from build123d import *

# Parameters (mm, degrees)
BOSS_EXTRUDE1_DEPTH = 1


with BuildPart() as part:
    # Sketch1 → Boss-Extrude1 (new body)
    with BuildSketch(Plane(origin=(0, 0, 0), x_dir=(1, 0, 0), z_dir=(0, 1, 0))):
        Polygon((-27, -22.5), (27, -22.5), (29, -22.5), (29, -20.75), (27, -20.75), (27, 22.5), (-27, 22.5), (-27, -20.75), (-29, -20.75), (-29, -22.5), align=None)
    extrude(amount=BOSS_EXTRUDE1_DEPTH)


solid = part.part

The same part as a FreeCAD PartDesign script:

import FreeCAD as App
import Part
import Sketcher
from FreeCAD import Vector

doc = App.newDocument("Part")
body = doc.addObject("PartDesign::Body", "Body")

sketch1 = body.newObject("Sketcher::SketchObject", "Sketch")
sketch1.AttachmentSupport = (doc.getObject("XZ_Plane"), [""])
sketch1.MapMode = "FlatFace"
sketch1.addGeometry([
    Part.LineSegment(Vector(29, 22.5, 0), Vector(29, 20.75, 0)),
    Part.LineSegment(Vector(29, 20.75, 0), Vector(27, 20.75, 0)),
    Part.LineSegment(Vector(27, 20.75, 0), Vector(27, -22.5, 0)),
    Part.LineSegment(Vector(27, -22.5, 0), Vector(-27, -22.5, 0)),
    Part.LineSegment(Vector(-27, -22.5, 0), Vector(-27, 20.75, 0)),
    Part.LineSegment(Vector(-27, 20.75, 0), Vector(-29, 20.75, 0)),
    Part.LineSegment(Vector(-29, 20.75, 0), Vector(-29, 22.5, 0)),
    Part.LineSegment(Vector(-29, 22.5, 0), Vector(29, 22.5, 0)),
], False)
sketch1.addConstraint([
    Sketcher.Constraint("Coincident", 0, 2, 1, 1),
    Sketcher.Constraint("Coincident", 1, 2, 2, 1),
    Sketcher.Constraint("Coincident", 2, 2, 3, 1),
    Sketcher.Constraint("Coincident", 3, 2, 4, 1),
    Sketcher.Constraint("Coincident", 4, 2, 5, 1),
    Sketcher.Constraint("Coincident", 5, 2, 6, 1),
    Sketcher.Constraint("Coincident", 6, 2, 7, 1),
    Sketcher.Constraint("Coincident", 7, 2, 0, 1),
    Sketcher.Constraint("Vertical", 0),
    Sketcher.Constraint("Horizontal", 1),
    Sketcher.Constraint("Vertical", 2),
    Sketcher.Constraint("Horizontal", 3),
    Sketcher.Constraint("Vertical", 4),
    Sketcher.Constraint("Horizontal", 5),
    Sketcher.Constraint("Vertical", 6),
    Sketcher.Constraint("Horizontal", 7),
    Sketcher.Constraint("Symmetric", 1, 2, 4, 2, -2),
    Sketcher.Constraint("Equal", 1, 5),
    Sketcher.Constraint("DistanceX", 1, 2, 1, 1, 2.0),
    Sketcher.Constraint("DistanceX", 3, 2, 3, 1, 54.0),
    Sketcher.Constraint("DistanceY", 3, 2, 6, 2, 45.0),
    Sketcher.Constraint("DistanceY", 0, 2, 0, 1, 1.75),
    Sketcher.Constraint("DistanceY", 2, 2, -1, 1, 22.5),
])
pad1 = body.newObject("PartDesign::Pad", "Pad")
pad1.Profile = sketch1
pad1.Length = 1
pad1.Reversed = True

doc.recompute()
